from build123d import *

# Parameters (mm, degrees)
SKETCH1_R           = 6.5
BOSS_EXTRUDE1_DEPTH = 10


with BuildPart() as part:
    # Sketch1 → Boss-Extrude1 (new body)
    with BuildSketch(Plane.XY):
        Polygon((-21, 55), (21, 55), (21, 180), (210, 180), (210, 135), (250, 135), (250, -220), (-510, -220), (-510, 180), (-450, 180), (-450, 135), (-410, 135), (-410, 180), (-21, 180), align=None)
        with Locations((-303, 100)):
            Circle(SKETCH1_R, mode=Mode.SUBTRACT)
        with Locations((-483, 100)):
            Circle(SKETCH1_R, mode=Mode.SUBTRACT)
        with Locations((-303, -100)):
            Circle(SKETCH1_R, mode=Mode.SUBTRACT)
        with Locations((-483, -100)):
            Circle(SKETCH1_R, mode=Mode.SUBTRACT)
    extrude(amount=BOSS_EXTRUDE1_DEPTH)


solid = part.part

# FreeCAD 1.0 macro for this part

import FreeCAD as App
import Part
import Sketcher

doc = App.newDocument("Part")
body = doc.addObject("PartDesign::Body", "Body")

sketch1 = body.newObject("Sketcher::SketchObject", "Sketch")
sketch1.AttachmentSupport = (doc.getObject("XY_Plane"), [""])
sketch1.MapMode = "FlatFace"
sketch1.addGeometry(Part.LineSegment(App.Vector(21, 55, 0), App.Vector(-21, 55, 0)), False)
sketch1.addGeometry(Part.LineSegment(App.Vector(-21, 55, 0), App.Vector(-21, 180, 0)), False)
sketch1.addGeometry(Part.LineSegment(App.Vector(-21, 180, 0), App.Vector(-410, 180, 0)), False)
sketch1.addGeometry(Part.LineSegment(App.Vector(-410, 180, 0), App.Vector(-410, 135, 0)), False)
sketch1.addGeometry(Part.LineSegment(App.Vector(-410, 135, 0), App.Vector(-450, 135, 0)), False)
sketch1.addGeometry(Part.LineSegment(App.Vector(-450, 135, 0), App.Vector(-450, 180, 0)), False)
sketch1.addGeometry(Part.LineSegment(App.Vector(-450, 180, 0), App.Vector(-510, 180, 0)), False)
sketch1.addGeometry(Part.LineSegment(App.Vector(-510, 180, 0), App.Vector(-510, -220, 0)), False)
sketch1.addGeometry(Part.LineSegment(App.Vector(-510, -220, 0), App.Vector(250, -220, 0)), False)
sketch1.addGeometry(Part.LineSegment(App.Vector(250, -220, 0), App.Vector(250, 135, 0)), False)
sketch1.addGeometry(Part.LineSegment(App.Vector(250, 135, 0), App.Vector(210, 135, 0)), False)
sketch1.addGeometry(Part.LineSegment(App.Vector(210, 135, 0), App.Vector(210, 180, 0)), False)
sketch1.addGeometry(Part.LineSegment(App.Vector(210, 180, 0), App.Vector(21, 180, 0)), False)
sketch1.addGeometry(Part.LineSegment(App.Vector(21, 180, 0), App.Vector(21, 55, 0)), False)
sketch1.addGeometry(Part.Circle(App.Vector(-303, -100, 0), App.Vector(0, 0, 1), 6), False)
sketch1.addGeometry(Part.Circle(App.Vector(-483, -100, 0), App.Vector(0, 0, 1), 6), False)
sketch1.addGeometry(Part.Circle(App.Vector(-303, 100, 0), App.Vector(0, 0, 1), 6), False)
sketch1.addGeometry(Part.Circle(App.Vector(-483, 100, 0), App.Vector(0, 0, 1), 6), False)
sketch1.addConstraint(Sketcher.Constraint("Coincident", 0, 2, 1, 1))
sketch1.addConstraint(Sketcher.Constraint("Coincident", 1, 2, 2, 1))
sketch1.addConstraint(Sketcher.Constraint("Coincident", 2, 2, 3, 1))
sketch1.addConstraint(Sketcher.Constraint("Coincident", 3, 2, 4, 1))
sketch1.addConstraint(Sketcher.Constraint("Coincident", 4, 2, 5, 1))
sketch1.addConstraint(Sketcher.Constraint("Coincident", 5, 2, 6, 1))
sketch1.addConstraint(Sketcher.Constraint("Coincident", 6, 2, 7, 1))
sketch1.addConstraint(Sketcher.Constraint("Coincident", 7, 2, 8, 1))
sketch1.addConstraint(Sketcher.Constraint("Coincident", 8, 2, 9, 1))
sketch1.addConstraint(Sketcher.Constraint("Coincident", 9, 2, 10, 1))
sketch1.addConstraint(Sketcher.Constraint("Coincident", 10, 2, 11, 1))
sketch1.addConstraint(Sketcher.Constraint("Coincident", 11, 2, 12, 1))
sketch1.addConstraint(Sketcher.Constraint("Coincident", 12, 2, 13, 1))
sketch1.addConstraint(Sketcher.Constraint("Coincident", 13, 2, 0, 1))
sketch1.addConstraint(Sketcher.Constraint("Horizontal", 0))
sketch1.addConstraint(Sketcher.Constraint("Vertical", 1))
sketch1.addConstraint(Sketcher.Constraint("Horizontal", 2))
sketch1.addConstraint(Sketcher.Constraint("Vertical", 3))
sketch1.addConstraint(Sketcher.Constraint("Horizontal", 4))
sketch1.addConstraint(Sketcher.Constraint("Vertical", 5))
sketch1.addConstraint(Sketcher.Constraint("Horizontal", 6))
sketch1.addConstraint(Sketcher.Constraint("Vertical", 7))
sketch1.addConstraint(Sketcher.Constraint("Horizontal", 8))
sketch1.addConstraint(Sketcher.Constraint("Vertical", 9))
sketch1.addConstraint(Sketcher.Constraint("Horizontal", 10))
sketch1.addConstraint(Sketcher.Constraint("Vertical", 11))
sketch1.addConstraint(Sketcher.Constraint("Horizontal", 12))
sketch1.addConstraint(Sketcher.Constraint("Vertical", 13))
sketch1.addConstraint(Sketcher.Constraint("Equal", 14, 15))
sketch1.addConstraint(Sketcher.Constraint("Equal", 15, 16))
sketch1.addConstraint(Sketcher.Constraint("Equal", 16, 17))
sketch1.addConstraint(Sketcher.Constraint("Symmetric", 1, 2, 12, 2, -2))
sketch1.addConstraint(Sketcher.Constraint("Symmetric", 14, 3, 16, 3, -1))
sketch1.addConstraint(Sketcher.Constraint("Symmetric", 15, 3, 17, 3, -1))
sketch1.addConstraint(Sketcher.Constraint("Horizontal", 14, 3, 15, 3))
sketch1.addConstraint(Sketcher.Constraint("Horizontal", 2, 2, 5, 2))
sketch1.addConstraint(Sketcher.Constraint("Horizontal", 4, 2, 9, 2))
sketch1.addConstraint(Sketcher.Constraint("Equal", 4, 10))
sketch1.addConstraint(Sketcher.Constraint("Diameter", 14, 13.0))
sketch1.addConstraint(Sketcher.Constraint("DistanceX", 0, 2, 0, 1, 42.0))
sketch1.addConstraint(Sketcher.Constraint("DistanceX", 2, 2, 2, 1, 389.0))
sketch1.addConstraint(Sketcher.Constraint("DistanceX", 4, 2, 4, 1, 40.0))
sketch1.addConstraint(Sketcher.Constraint("DistanceX", 6, 2, 6, 1, 60.0))
sketch1.addConstraint(Sketcher.Constraint("DistanceX", 8, 1, 8, 2, 760.0))
sketch1.addConstraint(Sketcher.Constraint("DistanceY", 1, 1, 1, 2, 125.0))
sketch1.addConstraint(Sketcher.Constraint("DistanceY", 3, 2, 3, 1, 45.0))
sketch1.addConstraint(Sketcher.Constraint("DistanceY", 7, 2, 7, 1, 400.0))
sketch1.addConstraint(Sketcher.Constraint("DistanceX", 14, 3, -1, 1, 303.0))
sketch1.addConstraint(Sketcher.Constraint("DistanceY", 14, 3, -1, 1, 100.0))
sketch1.addConstraint(Sketcher.Constraint("DistanceX", 15, 3, -1, 1, 483.0))
sketch1.addConstraint(Sketcher.Constraint("DistanceY", -1, 1, 0, 2, 55.0))
pad1 = body.newObject("PartDesign::Pad", "Pad")
pad1.Profile = sketch1
pad1.Length = 10

doc.recompute()
